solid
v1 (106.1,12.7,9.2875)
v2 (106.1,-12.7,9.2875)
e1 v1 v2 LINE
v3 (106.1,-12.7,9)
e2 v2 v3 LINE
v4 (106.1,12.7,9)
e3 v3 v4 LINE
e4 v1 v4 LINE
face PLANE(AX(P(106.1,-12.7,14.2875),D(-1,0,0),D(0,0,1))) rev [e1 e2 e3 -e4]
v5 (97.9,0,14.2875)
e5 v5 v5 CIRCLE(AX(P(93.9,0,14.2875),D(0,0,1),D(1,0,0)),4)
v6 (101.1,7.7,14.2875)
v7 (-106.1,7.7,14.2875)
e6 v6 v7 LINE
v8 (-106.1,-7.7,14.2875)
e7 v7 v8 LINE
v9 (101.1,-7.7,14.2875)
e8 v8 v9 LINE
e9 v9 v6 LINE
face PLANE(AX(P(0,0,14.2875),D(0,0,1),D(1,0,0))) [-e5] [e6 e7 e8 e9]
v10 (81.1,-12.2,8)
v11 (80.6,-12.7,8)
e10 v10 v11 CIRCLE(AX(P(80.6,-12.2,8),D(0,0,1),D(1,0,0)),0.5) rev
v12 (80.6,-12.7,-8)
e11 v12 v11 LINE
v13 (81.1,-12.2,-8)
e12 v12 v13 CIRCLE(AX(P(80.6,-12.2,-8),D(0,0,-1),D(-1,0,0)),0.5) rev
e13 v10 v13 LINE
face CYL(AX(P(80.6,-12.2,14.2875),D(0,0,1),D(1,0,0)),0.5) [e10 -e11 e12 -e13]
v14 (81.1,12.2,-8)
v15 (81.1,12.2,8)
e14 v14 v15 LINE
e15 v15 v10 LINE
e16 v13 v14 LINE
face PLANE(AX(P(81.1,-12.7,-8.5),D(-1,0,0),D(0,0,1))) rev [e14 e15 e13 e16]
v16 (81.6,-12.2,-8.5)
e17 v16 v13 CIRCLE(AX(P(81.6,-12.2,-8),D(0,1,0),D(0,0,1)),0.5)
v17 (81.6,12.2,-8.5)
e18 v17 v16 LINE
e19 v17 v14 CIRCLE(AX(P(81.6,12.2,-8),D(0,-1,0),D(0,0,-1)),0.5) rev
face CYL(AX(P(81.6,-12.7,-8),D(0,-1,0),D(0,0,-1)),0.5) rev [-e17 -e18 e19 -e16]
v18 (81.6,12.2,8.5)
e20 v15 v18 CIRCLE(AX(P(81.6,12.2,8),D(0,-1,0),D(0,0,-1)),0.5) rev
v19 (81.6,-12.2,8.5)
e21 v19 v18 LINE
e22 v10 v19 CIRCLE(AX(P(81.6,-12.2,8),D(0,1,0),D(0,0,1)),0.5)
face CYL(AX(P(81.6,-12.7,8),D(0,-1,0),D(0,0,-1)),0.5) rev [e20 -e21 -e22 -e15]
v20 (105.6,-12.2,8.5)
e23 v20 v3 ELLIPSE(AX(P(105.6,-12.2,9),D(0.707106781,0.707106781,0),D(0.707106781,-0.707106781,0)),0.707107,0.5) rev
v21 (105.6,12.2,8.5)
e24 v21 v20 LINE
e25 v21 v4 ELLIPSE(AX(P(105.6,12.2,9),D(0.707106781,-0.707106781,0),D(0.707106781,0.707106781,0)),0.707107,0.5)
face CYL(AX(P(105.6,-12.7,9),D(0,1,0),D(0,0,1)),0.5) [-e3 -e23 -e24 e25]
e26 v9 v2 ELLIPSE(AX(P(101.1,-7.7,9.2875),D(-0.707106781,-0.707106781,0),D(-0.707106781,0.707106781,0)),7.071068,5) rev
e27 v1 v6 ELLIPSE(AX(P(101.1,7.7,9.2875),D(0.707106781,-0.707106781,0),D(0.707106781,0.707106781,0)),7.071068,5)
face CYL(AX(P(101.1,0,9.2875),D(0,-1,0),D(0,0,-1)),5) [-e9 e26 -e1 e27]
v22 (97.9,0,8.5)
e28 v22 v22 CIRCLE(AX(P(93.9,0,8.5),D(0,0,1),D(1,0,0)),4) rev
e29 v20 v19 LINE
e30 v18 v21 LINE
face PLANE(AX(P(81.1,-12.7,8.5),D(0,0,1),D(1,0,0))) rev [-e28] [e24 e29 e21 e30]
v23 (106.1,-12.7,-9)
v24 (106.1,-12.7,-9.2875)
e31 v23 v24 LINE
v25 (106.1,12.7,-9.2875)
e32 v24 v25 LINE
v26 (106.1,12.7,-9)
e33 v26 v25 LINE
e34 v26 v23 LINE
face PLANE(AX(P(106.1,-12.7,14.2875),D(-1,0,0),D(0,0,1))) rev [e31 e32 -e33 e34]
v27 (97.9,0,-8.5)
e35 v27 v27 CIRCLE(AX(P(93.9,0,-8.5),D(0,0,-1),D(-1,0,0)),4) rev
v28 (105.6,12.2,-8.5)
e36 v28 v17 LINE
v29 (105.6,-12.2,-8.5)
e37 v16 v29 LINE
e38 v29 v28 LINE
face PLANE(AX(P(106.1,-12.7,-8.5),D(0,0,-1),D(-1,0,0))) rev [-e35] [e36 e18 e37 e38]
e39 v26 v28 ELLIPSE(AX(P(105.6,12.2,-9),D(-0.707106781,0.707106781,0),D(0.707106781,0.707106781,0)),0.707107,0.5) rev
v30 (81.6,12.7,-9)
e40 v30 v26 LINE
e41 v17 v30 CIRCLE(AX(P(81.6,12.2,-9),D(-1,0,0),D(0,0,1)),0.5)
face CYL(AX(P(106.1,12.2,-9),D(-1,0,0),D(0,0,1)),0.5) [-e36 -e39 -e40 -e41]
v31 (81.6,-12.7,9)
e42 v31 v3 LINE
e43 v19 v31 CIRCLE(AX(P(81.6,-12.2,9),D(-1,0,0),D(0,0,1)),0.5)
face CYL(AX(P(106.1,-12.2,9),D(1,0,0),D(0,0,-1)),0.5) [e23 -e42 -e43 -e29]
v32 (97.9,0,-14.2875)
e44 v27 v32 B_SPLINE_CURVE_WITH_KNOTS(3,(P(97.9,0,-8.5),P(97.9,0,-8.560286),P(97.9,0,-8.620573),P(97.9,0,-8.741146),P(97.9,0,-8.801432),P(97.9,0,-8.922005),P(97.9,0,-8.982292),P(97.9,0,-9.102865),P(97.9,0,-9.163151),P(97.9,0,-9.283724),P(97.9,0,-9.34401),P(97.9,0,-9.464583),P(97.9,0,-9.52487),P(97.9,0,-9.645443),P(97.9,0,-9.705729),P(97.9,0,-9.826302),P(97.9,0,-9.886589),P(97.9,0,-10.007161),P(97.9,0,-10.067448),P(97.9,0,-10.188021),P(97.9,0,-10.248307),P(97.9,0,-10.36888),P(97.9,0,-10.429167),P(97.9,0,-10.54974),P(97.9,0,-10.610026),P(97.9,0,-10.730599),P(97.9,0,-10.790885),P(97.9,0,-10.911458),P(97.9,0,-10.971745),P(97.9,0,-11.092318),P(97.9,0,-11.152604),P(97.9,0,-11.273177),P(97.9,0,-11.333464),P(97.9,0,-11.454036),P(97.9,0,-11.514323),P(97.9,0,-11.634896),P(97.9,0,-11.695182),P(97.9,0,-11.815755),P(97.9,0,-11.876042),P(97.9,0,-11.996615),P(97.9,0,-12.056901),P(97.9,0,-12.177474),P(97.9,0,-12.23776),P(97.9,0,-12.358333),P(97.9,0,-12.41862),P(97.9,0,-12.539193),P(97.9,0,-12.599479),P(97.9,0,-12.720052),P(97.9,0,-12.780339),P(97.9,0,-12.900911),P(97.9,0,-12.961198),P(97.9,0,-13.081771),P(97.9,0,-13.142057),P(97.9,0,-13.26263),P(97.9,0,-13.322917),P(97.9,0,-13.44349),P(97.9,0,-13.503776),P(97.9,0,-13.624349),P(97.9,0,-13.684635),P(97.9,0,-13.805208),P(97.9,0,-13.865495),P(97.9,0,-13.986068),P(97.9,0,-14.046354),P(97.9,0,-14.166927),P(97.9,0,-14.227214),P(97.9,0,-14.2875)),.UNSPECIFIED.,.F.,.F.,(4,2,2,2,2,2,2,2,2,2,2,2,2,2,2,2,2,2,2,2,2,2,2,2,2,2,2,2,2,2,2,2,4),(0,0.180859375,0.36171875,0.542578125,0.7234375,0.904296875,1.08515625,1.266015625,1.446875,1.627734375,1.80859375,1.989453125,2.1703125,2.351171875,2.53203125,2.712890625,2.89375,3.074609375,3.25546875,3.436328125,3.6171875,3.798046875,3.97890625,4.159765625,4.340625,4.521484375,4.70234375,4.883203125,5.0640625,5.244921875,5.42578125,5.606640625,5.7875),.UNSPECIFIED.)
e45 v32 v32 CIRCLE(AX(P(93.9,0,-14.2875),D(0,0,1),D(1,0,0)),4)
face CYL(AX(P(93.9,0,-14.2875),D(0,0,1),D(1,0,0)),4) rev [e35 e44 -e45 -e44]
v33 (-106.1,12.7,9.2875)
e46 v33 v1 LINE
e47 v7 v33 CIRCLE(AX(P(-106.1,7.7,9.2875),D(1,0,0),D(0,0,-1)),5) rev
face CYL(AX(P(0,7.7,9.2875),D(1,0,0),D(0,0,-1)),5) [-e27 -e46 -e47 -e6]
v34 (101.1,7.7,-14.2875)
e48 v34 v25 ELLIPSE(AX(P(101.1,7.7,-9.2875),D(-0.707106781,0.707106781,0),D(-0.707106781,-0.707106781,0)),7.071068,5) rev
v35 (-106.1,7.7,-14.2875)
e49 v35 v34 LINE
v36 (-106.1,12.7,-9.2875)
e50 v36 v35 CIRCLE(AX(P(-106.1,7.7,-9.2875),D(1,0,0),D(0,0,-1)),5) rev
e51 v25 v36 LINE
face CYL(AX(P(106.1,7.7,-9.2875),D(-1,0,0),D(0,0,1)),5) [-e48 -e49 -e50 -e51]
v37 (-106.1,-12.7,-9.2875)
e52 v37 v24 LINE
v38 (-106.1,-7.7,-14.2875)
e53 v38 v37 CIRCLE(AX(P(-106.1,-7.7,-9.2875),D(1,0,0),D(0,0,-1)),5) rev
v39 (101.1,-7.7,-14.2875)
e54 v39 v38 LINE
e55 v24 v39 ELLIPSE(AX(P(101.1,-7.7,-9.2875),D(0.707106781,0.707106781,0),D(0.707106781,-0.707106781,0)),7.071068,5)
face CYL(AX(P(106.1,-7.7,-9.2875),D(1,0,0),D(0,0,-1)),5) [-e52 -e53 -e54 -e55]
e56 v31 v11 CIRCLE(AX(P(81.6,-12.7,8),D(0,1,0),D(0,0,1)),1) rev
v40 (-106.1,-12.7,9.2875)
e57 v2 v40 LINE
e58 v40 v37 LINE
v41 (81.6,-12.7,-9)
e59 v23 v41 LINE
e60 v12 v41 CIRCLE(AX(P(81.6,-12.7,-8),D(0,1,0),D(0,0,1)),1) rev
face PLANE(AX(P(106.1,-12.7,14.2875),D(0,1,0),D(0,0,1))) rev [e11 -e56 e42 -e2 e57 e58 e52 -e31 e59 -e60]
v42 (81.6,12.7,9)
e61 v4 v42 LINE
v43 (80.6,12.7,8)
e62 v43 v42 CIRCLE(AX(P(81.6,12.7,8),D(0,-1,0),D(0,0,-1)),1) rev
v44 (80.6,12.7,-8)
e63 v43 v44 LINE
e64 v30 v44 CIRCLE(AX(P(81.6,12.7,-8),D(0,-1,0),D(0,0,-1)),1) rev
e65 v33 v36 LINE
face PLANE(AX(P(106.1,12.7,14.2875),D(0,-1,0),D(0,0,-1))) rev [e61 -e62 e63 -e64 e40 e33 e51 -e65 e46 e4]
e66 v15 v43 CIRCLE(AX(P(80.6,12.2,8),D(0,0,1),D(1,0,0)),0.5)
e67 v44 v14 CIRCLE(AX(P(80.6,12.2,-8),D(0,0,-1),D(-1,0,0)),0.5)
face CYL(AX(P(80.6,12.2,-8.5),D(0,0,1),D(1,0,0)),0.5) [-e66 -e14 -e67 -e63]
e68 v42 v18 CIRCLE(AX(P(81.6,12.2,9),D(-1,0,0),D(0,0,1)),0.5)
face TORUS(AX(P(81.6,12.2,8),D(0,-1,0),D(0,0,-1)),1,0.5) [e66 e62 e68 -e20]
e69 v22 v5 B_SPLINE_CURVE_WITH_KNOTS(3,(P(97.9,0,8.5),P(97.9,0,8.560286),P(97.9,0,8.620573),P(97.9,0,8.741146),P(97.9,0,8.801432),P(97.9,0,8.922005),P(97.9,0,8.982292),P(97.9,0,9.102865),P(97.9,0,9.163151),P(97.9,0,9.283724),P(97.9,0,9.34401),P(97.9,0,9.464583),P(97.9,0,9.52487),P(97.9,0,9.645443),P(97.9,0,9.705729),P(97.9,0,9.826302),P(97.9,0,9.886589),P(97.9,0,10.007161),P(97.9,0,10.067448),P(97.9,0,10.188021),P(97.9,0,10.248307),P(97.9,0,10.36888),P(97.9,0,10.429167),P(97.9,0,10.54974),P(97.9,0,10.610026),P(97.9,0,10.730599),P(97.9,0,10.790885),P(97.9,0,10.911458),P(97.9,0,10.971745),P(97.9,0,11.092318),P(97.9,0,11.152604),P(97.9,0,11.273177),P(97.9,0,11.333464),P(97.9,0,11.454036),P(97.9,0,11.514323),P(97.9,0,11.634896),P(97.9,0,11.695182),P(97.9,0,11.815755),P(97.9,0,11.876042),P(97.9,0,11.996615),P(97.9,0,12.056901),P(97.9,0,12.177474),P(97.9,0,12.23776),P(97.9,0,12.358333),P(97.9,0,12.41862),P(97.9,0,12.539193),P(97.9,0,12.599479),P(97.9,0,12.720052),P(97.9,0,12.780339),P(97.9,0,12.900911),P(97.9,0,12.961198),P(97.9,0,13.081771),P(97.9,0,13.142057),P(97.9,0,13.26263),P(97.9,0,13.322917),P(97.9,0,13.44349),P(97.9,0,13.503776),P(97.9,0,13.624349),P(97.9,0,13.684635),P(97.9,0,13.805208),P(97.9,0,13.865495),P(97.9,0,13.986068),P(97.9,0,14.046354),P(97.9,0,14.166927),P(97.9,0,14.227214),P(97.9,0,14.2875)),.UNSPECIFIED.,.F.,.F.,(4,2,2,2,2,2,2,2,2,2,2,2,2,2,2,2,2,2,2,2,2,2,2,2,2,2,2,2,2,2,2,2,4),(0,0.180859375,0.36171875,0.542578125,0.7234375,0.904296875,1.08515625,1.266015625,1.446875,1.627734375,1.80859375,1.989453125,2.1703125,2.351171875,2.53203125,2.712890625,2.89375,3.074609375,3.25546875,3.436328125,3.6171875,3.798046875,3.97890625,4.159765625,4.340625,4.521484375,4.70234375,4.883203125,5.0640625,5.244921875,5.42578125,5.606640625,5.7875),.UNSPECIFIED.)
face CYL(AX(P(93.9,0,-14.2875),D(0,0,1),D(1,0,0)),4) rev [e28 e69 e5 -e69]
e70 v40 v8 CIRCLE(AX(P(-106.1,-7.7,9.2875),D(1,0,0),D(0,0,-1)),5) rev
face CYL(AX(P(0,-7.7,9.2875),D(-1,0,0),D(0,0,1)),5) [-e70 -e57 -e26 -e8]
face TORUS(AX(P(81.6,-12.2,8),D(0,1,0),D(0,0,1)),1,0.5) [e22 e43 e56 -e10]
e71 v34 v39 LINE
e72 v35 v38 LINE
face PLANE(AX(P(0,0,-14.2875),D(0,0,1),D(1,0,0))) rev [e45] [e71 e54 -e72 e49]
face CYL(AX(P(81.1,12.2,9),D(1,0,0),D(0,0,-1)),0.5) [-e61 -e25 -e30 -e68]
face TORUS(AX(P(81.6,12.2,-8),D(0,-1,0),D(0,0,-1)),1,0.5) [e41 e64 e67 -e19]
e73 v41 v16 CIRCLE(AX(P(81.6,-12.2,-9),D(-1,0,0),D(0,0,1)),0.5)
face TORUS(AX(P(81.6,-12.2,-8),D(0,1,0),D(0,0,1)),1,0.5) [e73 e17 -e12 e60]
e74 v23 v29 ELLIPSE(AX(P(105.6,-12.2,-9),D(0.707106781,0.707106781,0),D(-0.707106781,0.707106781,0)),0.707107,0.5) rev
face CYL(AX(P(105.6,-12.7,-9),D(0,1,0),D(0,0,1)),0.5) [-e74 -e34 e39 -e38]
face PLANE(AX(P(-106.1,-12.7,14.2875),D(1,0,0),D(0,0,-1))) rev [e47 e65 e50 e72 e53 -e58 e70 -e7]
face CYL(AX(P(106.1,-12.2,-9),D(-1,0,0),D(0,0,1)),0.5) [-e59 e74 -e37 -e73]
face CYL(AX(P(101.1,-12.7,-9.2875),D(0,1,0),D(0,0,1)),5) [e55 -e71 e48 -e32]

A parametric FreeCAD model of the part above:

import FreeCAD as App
import Part
import Sketcher
Q = App.Units.Quantity


def edges_at(feature, points):
    """Names of the edges that pass closest to the given points."""
    edges = feature.Shape.Edges
    near = lambda p: min(range(len(edges)), key=lambda i: edges[i].distToShape(Part.Vertex(*p))[0])
    return sorted({f"Edge{near(p) + 1}" for p in points})


def add_polygon(sketch, points):
    """Adds a closed chain of lines whose ends are joined by coincident constraints."""
    first, n = sketch.GeometryCount, len(points)
    for a, b in zip(points, points[1:] + points[:1]):
        sketch.addGeometry(Part.LineSegment(App.Vector(*a, 0), App.Vector(*b, 0)), False)
    for i in range(n):
        sketch.addConstraint(Sketcher.Constraint("Coincident", first + i, 2, first + (i + 1) % n, 1))

doc = App.newDocument("Part")
params = doc.addObject("Spreadsheet::Sheet", "Params")
for row, (alias, value) in enumerate([
    ("sketch1_width", "212.2 mm"),
    ("sketch1_height", "25.4 mm"),
    ("pad1_length", "28.575 mm"),
    ("sketch2_diameter", "8 mm"),
    ("sketch3_width", "25 mm"),
    ("sketch3_height", "17 mm"),
    ("fillet_radius", "5 mm"),
    ("fillet2_radius", "0.5 mm"),
], start=1):
    params.set(f"A{row}", alias)
    params.set(f"B{row}", "=" + value)
    params.setAlias(f"B{row}", alias)

body = doc.addObject("PartDesign::Body", "Body")

# Sketch on XY plane
sketch1 = body.newObject("Sketcher::SketchObject", "Sketch")
sketch1.AttachmentSupport = (doc.getObject("XY_Plane"), [""])
sketch1.MapMode = "FlatFace"
add_polygon(sketch1, [(-106, 13), (-106, -13), (106, -13), (106, 13)])  # lines 0-3
sketch1.addConstraint(Sketcher.Constraint("Vertical", 0))
sketch1.addConstraint(Sketcher.Constraint("Horizontal", 1))
sketch1.addConstraint(Sketcher.Constraint("Vertical", 2))
sketch1.addConstraint(Sketcher.Constraint("Horizontal", 3))
sketch1.addConstraint(Sketcher.Constraint("Symmetric", 0, 2, 2, 2, -1, 1))
sketch1.addConstraint(Sketcher.Constraint("DistanceX", 1, 1, 1, 2, Q("212.2 mm")))
sketch1.addConstraint(Sketcher.Constraint("DistanceY", 0, 2, 0, 1, Q("25.4 mm")))
sketch1.setExpression("Constraints[9]", "Params.sketch1_width")
sketch1.setExpression("Constraints[10]", "Params.sketch1_height")
pad1 = body.newObject("PartDesign::Pad", "Pad")
pad1.Profile = sketch1
pad1.setExpression("Length", "Params.pad1_length")
pad1.Midplane = True

# Sketch on XY plane
sketch2 = body.newObject("Sketcher::SketchObject", "Sketch001")
sketch2.AttachmentSupport = (doc.getObject("XY_Plane"), [""])
sketch2.MapMode = "FlatFace"
sketch2.addGeometry(Part.Circle(App.Vector(93.9, 0, 0), App.Vector(0, 0, 1), 4), False)
sketch2.addConstraint(Sketcher.Constraint("PointOnObject", 0, 3, -1))
sketch2.addConstraint(Sketcher.Constraint("Diameter", 0, Q("8 mm")))
sketch2.addConstraint(Sketcher.Constraint("DistanceX", -1, 1, 0, 3, Q("93.9 mm")))
sketch2.setExpression("Constraints[1]", "Params.sketch2_diameter")
pocket1 = body.newObject("PartDesign::Pocket", "Pocket")
pocket1.Profile = sketch2
pocket1.Type = "ThroughAll"
pocket1.Midplane = True

# Sketch on XZ plane
sketch3 = body.newObject("Sketcher::SketchObject", "Sketch002")
sketch3.AttachmentSupport = (doc.getObject("XZ_Plane"), [""])
sketch3.MapMode = "FlatFace"
add_polygon(sketch3, [(81, -8), (81, 8), (106, 8), (106, -8)])  # lines 0-3
sketch3.addConstraint(Sketcher.Constraint("Vertical", 0))
sketch3.addConstraint(Sketcher.Constraint("Horizontal", 1))
sketch3.addConstraint(Sketcher.Constraint("Vertical", 2))
sketch3.addConstraint(Sketcher.Constraint("Horizontal", 3))
sketch3.addConstraint(Sketcher.Constraint("DistanceX", 1, 1, 1, 2, Q("25 mm")))
sketch3.addConstraint(Sketcher.Constraint("DistanceY", 0, 1, 0, 2, Q("17 mm")))
sketch3.addConstraint(Sketcher.Constraint("DistanceX", -1, 1, 0, 2, Q("81.1 mm")))
sketch3.addConstraint(Sketcher.Constraint("DistanceY", -1, 1, 0, 2, Q("8.5 mm")))
sketch3.setExpression("Constraints[8]", "Params.sketch3_width")
sketch3.setExpression("Constraints[9]", "Params.sketch3_height")
pocket2 = body.newObject("PartDesign::Pocket", "Pocket001")
pocket2.Profile = sketch3
pocket2.Type = "ThroughAll"
pocket2.Midplane = True
doc.recompute()

fillet = body.newObject("PartDesign::Fillet", "Fillet")
fillet.Base = (pocket2, edges_at(pocket2, [
    (106.1, 0, 14.287),
    (0, 12.7, 14.287),
    (0, 12.7, -14.287),
    (106.1, 0, -14.287),
    (0, -12.7, -14.287),
    (0, -12.7, 14.287),
]))
fillet.setExpression("Radius", "Params.fillet_radius")
doc.recompute()

fillet2 = body.newObject("PartDesign::Fillet", "Fillet001")
fillet2.Base = (fillet, edges_at(fillet, [
    (106.1, 0, 8.5),
    (93.6, -12.7, 8.5),
    (81.1, 0, -8.5),
    (93.6, -12.7, -8.5),
    (106.1, 0, -8.5),
    (81.1, 0, 8.5),
    (81.1, -12.7, 0),
    (93.6, 12.7, -8.5),
    (81.1, 12.7, 0),
    (93.6, 12.7, 8.5),
]))
fillet2.setExpression("Radius", "Params.fillet2_radius")

doc.recompute()
